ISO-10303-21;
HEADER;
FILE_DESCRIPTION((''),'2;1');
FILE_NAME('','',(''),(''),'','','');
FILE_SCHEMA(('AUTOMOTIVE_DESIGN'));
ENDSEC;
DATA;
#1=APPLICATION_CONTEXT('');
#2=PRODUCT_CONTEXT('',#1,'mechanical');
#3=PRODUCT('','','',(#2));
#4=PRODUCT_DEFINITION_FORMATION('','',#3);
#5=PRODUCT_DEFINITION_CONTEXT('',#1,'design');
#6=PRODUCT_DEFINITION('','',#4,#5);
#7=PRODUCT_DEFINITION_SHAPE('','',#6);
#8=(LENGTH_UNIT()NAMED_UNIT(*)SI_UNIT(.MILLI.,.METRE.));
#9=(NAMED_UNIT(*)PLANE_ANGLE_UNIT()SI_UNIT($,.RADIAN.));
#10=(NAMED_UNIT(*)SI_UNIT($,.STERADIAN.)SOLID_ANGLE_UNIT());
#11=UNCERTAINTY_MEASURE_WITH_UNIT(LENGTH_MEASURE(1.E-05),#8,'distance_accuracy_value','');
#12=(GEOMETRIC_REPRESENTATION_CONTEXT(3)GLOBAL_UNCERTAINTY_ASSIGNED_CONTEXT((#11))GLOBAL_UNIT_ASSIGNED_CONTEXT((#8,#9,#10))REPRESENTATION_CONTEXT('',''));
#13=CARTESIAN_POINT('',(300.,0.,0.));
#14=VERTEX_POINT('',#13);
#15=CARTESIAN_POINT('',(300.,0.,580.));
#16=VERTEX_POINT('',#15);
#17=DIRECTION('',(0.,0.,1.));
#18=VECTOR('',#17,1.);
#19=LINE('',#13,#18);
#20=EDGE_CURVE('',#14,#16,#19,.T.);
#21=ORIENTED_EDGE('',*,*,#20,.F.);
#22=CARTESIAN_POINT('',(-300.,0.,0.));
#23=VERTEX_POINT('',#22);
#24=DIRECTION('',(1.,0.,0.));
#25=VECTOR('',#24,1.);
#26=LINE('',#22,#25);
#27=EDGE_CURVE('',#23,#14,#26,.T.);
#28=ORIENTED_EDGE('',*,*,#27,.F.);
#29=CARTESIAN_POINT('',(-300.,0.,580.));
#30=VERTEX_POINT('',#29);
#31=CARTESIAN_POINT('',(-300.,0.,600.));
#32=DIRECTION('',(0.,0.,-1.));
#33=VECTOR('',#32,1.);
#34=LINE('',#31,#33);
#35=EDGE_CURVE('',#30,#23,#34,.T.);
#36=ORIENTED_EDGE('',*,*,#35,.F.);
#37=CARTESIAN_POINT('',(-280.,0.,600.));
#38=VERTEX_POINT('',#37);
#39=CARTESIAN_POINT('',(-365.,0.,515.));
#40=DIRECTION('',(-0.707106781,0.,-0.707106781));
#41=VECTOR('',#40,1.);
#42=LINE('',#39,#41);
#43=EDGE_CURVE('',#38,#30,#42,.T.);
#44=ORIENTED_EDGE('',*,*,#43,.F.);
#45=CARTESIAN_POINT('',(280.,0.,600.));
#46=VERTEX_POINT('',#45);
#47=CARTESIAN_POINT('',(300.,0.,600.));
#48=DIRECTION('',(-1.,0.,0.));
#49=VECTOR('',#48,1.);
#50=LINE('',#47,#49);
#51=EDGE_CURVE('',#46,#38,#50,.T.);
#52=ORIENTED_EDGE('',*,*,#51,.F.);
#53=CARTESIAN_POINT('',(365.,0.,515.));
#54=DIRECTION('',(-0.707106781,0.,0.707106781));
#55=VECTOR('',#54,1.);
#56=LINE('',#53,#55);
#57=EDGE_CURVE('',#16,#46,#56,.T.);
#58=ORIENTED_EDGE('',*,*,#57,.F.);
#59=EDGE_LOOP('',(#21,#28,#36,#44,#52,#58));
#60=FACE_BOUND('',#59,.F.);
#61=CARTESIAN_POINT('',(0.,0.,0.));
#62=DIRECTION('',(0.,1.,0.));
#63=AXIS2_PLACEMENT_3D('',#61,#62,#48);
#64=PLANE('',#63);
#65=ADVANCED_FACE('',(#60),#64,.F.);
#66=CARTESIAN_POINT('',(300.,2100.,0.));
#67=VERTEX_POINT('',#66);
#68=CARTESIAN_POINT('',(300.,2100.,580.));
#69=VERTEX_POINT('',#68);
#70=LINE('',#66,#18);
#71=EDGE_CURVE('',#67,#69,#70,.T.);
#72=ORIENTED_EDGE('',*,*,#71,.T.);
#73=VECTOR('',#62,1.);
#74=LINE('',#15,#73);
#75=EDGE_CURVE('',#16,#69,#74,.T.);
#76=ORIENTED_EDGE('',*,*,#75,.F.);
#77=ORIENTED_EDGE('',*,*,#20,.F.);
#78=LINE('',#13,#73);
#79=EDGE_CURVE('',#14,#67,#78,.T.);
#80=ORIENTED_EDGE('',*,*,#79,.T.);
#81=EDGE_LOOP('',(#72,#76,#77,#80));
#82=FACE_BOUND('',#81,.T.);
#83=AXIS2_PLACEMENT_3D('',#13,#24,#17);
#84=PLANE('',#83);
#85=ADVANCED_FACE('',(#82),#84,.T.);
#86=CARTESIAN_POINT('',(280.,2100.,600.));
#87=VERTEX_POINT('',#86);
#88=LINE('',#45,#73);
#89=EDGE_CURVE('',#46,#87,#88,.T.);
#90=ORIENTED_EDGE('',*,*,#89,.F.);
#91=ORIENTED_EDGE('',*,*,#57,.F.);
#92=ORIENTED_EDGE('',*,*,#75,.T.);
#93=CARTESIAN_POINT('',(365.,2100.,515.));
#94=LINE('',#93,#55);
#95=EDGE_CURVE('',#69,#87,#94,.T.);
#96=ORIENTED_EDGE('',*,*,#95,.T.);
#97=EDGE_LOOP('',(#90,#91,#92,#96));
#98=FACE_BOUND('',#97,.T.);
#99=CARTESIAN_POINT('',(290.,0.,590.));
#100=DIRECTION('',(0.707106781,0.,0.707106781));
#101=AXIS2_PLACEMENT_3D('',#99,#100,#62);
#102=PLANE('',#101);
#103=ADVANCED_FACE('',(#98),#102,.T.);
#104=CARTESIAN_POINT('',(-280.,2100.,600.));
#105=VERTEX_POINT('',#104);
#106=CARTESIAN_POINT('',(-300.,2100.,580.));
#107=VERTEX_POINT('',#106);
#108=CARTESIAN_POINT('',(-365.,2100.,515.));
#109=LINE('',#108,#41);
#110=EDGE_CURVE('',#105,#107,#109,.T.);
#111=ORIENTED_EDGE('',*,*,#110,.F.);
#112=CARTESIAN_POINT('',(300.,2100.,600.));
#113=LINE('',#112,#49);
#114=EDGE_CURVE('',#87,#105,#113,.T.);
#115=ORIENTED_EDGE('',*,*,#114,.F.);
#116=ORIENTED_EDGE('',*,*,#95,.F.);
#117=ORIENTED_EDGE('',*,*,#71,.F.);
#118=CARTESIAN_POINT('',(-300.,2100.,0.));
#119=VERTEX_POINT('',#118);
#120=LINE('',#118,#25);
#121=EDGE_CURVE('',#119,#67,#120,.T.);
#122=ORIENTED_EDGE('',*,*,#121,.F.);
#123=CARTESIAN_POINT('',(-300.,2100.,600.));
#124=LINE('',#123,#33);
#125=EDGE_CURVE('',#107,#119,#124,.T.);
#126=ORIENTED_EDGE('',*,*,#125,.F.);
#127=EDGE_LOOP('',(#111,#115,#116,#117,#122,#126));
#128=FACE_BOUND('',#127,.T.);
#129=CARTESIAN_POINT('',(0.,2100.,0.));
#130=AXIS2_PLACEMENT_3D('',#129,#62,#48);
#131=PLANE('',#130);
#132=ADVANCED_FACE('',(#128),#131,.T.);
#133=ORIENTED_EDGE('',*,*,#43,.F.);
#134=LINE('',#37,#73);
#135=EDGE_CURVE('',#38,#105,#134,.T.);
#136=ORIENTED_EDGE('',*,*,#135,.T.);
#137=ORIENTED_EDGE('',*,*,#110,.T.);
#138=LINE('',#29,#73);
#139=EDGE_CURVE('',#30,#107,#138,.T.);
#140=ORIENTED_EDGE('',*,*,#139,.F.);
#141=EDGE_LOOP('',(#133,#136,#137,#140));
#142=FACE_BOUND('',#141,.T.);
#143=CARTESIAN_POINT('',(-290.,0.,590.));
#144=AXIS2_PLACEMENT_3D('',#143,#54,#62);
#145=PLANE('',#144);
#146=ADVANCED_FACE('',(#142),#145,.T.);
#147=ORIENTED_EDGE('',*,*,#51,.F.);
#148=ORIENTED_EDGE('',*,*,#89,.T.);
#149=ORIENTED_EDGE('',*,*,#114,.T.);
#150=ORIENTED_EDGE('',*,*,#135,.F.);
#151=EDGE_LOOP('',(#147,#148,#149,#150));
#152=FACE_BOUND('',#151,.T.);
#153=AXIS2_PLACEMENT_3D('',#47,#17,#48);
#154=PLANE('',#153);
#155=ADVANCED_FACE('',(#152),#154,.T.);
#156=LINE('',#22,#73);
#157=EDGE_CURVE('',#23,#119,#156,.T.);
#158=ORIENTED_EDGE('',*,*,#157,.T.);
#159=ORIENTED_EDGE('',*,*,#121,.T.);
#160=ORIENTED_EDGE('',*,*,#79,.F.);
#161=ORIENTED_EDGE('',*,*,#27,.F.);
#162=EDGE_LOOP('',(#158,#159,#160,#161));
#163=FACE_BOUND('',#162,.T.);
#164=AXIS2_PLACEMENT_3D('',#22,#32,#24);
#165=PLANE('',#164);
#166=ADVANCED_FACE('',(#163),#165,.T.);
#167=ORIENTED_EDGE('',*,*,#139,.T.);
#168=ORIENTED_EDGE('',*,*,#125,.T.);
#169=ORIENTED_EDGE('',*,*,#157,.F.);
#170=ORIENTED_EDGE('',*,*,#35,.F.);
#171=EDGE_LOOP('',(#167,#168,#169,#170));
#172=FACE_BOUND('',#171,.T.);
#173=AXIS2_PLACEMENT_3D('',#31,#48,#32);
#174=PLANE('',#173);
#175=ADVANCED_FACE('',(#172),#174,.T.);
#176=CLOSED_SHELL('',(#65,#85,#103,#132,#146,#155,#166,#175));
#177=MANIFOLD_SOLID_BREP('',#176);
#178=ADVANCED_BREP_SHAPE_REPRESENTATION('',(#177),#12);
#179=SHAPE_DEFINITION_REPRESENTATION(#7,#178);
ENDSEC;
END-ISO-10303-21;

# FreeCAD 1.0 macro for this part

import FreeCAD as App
import Part
import Sketcher

V = App.Vector
Q = App.Units.Quantity


def edges_at(feature, points):
    """Names of the edges that pass closest to the given points."""
    edges = feature.Shape.Edges
    near = lambda p: min(range(len(edges)), key=lambda i: edges[i].distToShape(Part.Vertex(*p))[0])
    return sorted({f"Edge{near(p) + 1}" for p in points})

doc = App.newDocument("Part")
body = doc.addObject("PartDesign::Body", "Body")

sketch1 = body.newObject("Sketcher::SketchObject", "Sketch")
sketch1.AttachmentSupport = (doc.getObject("XZ_Plane"), [""])
sketch1.MapMode = "FlatFace"
sketch1.addGeometry(Part.LineSegment(V(300, 0, 0), V(-300, 0, 0)), False)
sketch1.addGeometry(Part.LineSegment(V(-300, 0, 0), V(-300, 600, 0)), False)
sketch1.addGeometry(Part.LineSegment(V(-300, 600, 0), V(300, 600, 0)), False)
sketch1.addGeometry(Part.LineSegment(V(300, 600, 0), V(300, 0, 0)), False)
sketch1.addConstraint(Sketcher.Constraint("Coincident", 0, 2, 1, 1))
sketch1.addConstraint(Sketcher.Constraint("Coincident", 1, 2, 2, 1))
sketch1.addConstraint(Sketcher.Constraint("Coincident", 2, 2, 3, 1))
sketch1.addConstraint(Sketcher.Constraint("Coincident", 3, 2, 0, 1))
sketch1.addConstraint(Sketcher.Constraint("Horizontal", 0))
sketch1.addConstraint(Sketcher.Constraint("Vertical", 1))
sketch1.addConstraint(Sketcher.Constraint("Horizontal", 2))
sketch1.addConstraint(Sketcher.Constraint("Vertical", 3))
sketch1.addConstraint(Sketcher.Constraint("Symmetric", 0, 2, 3, 2, -1, 1))
sketch1.addConstraint(Sketcher.Constraint("Equal", 2, 1))
sketch1.addConstraint(Sketcher.Constraint("DistanceX", 0, 2, 0, 1, Q("600 mm")))
pad1 = body.newObject("PartDesign::Pad", "Pad")
pad1.Profile = sketch1
pad1.Length = 2100
pad1.Reversed = True
doc.recompute()

chamfer = body.newObject("PartDesign::Chamfer", "Chamfer")
chamfer.Base = (pad1, edges_at(pad1, [(300, 1050, 600), (-300, 1050, 600)]))
chamfer.Size = 20

doc.recompute()
